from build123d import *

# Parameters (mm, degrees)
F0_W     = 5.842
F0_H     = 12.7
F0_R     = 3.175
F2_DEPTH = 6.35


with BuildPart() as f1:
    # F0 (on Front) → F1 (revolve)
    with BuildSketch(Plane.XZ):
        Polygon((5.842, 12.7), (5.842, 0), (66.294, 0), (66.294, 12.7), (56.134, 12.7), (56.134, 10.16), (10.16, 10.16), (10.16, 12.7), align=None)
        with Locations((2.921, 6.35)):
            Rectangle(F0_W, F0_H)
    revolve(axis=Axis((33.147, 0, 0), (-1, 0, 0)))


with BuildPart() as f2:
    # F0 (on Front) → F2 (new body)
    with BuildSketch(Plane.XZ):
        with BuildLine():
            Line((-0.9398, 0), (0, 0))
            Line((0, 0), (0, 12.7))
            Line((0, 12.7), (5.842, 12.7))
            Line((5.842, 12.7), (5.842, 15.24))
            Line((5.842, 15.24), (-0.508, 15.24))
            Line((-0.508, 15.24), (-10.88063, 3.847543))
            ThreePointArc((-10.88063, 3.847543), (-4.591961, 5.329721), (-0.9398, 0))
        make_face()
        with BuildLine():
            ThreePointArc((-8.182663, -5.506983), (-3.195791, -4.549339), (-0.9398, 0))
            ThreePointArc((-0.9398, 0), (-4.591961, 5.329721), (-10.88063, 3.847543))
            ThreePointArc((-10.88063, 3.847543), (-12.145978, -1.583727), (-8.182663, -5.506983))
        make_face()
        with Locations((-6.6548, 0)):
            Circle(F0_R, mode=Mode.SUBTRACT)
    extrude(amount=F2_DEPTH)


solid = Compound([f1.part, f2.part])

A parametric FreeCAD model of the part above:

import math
import FreeCAD as App
import Part
import Sketcher
Q = App.Units.Quantity

doc = App.newDocument("Part")
body = doc.addObject("PartDesign::Body", "Body")

# Sketch on XZ plane
sketch1 = body.newObject("Sketcher::SketchObject", "Sketch")
sketch1.AttachmentSupport = (doc.getObject("XZ_Plane"), [""])
sketch1.MapMode = "FlatFace"
sketch1.addGeometry([
    Part.LineSegment(App.Vector(66.3, 0, 0), App.Vector(66.3, 12.7, 0)),  # 0
    Part.LineSegment(App.Vector(66.3, 12.7, 0), App.Vector(56.1, 12.7, 0)),  # 1
    Part.LineSegment(App.Vector(56.1, 12.7, 0), App.Vector(56.1, 10.2, 0)),  # 2
    Part.LineSegment(App.Vector(56.1, 10.2, 0), App.Vector(10.2, 10.2, 0)),  # 3
    Part.LineSegment(App.Vector(10.2, 10.2, 0), App.Vector(10.2, 12.7, 0)),  # 4
    Part.LineSegment(App.Vector(10.2, 12.7, 0), App.Vector(0, 12.7, 0)),  # 5
    Part.LineSegment(App.Vector(0, 12.7, 0), App.Vector(0, 0, 0)),  # 6
    Part.LineSegment(App.Vector(0, 0, 0), App.Vector(66.3, 0, 0)),  # 7
], False)
sketch1.addConstraint([
    Sketcher.Constraint("Coincident", 0, 2, 1, 1),
    Sketcher.Constraint("Coincident", 1, 2, 2, 1),
    Sketcher.Constraint("Coincident", 2, 2, 3, 1),
    Sketcher.Constraint("Coincident", 3, 2, 4, 1),
    Sketcher.Constraint("Coincident", 4, 2, 5, 1),
    Sketcher.Constraint("Coincident", 5, 2, 6, 1),
    Sketcher.Constraint("Coincident", 6, 2, 7, 1),
    Sketcher.Constraint("Coincident", 7, 2, 0, 1),
    Sketcher.Constraint("Vertical", 0),
    Sketcher.Constraint("Horizontal", 1),
    Sketcher.Constraint("Vertical", 2),
    Sketcher.Constraint("Horizontal", 3),
    Sketcher.Constraint("Vertical", 4),
    Sketcher.Constraint("Horizontal", 5),
    Sketcher.Constraint("Vertical", 6),
    Sketcher.Constraint("Horizontal", 7),
    Sketcher.Constraint("Coincident", 6, 2, -1, 1),
    Sketcher.Constraint("Horizontal", 1, 2, 4, 2),
    Sketcher.Constraint("Equal", 1, 5),
    Sketcher.Constraint("DistanceX", 1, 2, 1, 1, Q("0.4 in")),
    Sketcher.Constraint("DistanceY", 0, 1, 0, 2, Q("0.5 in")),
    Sketcher.Constraint("DistanceY", 2, 2, 2, 1, Q("0.1 in")),
    Sketcher.Constraint("DistanceX", 3, 2, 3, 1, Q("1.81 in")),
])
revolution = body.newObject("PartDesign::Revolution", "Revolution")
revolution.Profile = sketch1
revolution.ReferenceAxis = (sketch1, ["H_Axis"])
revolution.Angle = 360
body2 = doc.addObject("PartDesign::Body", "Body001")

# Sketch on XZ plane
sketch2 = body2.newObject("Sketcher::SketchObject", "Sketch001")
sketch2.AttachmentSupport = (doc.getObject("XZ_Plane001"), [""])
sketch2.MapMode = "FlatFace"
sketch2.addGeometry([
    Part.LineSegment(App.Vector(-0.9, 0, 0), App.Vector(0, 0, 0)),  # 0
    Part.LineSegment(App.Vector(0, 0, 0), App.Vector(0, 12.7, 0)),  # 1
    Part.LineSegment(App.Vector(0, 12.7, 0), App.Vector(5.8, 12.7, 0)),  # 2
    Part.LineSegment(App.Vector(5.8, 12.7, 0), App.Vector(5.8, 15.2, 0)),  # 3
    Part.LineSegment(App.Vector(5.8, 15.2, 0), App.Vector(-0.5, 15.2, 0)),  # 4
    Part.LineSegment(App.Vector(-0.5, 15.2, 0), App.Vector(-10.9, 3.8, 0)),  # 5
    Part.ArcOfCircle(Part.Circle(App.Vector(-6.7, 0, 0), App.Vector(0, 0, 1), 5.7), math.radians(138), math.radians(254)),  # 6
    Part.ArcOfCircle(Part.Circle(App.Vector(-6.7, 0, 0), App.Vector(0, 0, 1), 5.7), math.radians(-106), math.radians(0)),  # 7
    Part.Circle(App.Vector(-6.7, 0, 0), App.Vector(0, 0, 1), 3.2),  # 8
], False)
sketch2.addConstraint([
    Sketcher.Constraint("Coincident", 0, 2, 1, 1),
    Sketcher.Constraint("Coincident", 1, 2, 2, 1),
    Sketcher.Constraint("Coincident", 2, 2, 3, 1),
    Sketcher.Constraint("Coincident", 3, 2, 4, 1),
    Sketcher.Constraint("Coincident", 4, 2, 5, 1),
    Sketcher.Constraint("Tangent", 5, 2, 6, 1),
    Sketcher.Constraint("Tangent", 6, 2, 7, 1),
    Sketcher.Constraint("Coincident", 7, 2, 0, 1),
    Sketcher.Constraint("Horizontal", 0),
    Sketcher.Constraint("Vertical", 1),
    Sketcher.Constraint("Horizontal", 2),
    Sketcher.Constraint("Vertical", 3),
    Sketcher.Constraint("Horizontal", 4),
    Sketcher.Constraint("Coincident", 0, 2, -1, 1),
    Sketcher.Constraint("Coincident", 8, 3, 6, 3),
    Sketcher.Constraint("Equal", 6, 7),
    Sketcher.Constraint("PointOnObject", 6, 3, -1),
    Sketcher.Constraint("Diameter", 8, Q("0.25 in")),
    Sketcher.Constraint("DistanceY", 1, 1, 1, 2, Q("0.5 in")),
    Sketcher.Constraint("DistanceY", 3, 1, 3, 2, Q("0.1 in")),
    Sketcher.Constraint("Radius", 6, Q("0.225 in")),
    Sketcher.Constraint("DistanceX", 2, 1, 2, 2, Q("0.23 in")),
    Sketcher.Constraint("DistanceX", 4, 2, 4, 1, Q("0.25 in")),
    Sketcher.Constraint("DistanceX", 0, 1, 0, 2, Q("0.037 in")),
    Sketcher.Constraint("DistanceX", 6, 2, -1, 1, 8.182663),
])
pad1 = body2.newObject("PartDesign::Pad", "Pad")
pad1.Profile = sketch2
pad1.Length = Q("0.25 in")

doc.recompute()
